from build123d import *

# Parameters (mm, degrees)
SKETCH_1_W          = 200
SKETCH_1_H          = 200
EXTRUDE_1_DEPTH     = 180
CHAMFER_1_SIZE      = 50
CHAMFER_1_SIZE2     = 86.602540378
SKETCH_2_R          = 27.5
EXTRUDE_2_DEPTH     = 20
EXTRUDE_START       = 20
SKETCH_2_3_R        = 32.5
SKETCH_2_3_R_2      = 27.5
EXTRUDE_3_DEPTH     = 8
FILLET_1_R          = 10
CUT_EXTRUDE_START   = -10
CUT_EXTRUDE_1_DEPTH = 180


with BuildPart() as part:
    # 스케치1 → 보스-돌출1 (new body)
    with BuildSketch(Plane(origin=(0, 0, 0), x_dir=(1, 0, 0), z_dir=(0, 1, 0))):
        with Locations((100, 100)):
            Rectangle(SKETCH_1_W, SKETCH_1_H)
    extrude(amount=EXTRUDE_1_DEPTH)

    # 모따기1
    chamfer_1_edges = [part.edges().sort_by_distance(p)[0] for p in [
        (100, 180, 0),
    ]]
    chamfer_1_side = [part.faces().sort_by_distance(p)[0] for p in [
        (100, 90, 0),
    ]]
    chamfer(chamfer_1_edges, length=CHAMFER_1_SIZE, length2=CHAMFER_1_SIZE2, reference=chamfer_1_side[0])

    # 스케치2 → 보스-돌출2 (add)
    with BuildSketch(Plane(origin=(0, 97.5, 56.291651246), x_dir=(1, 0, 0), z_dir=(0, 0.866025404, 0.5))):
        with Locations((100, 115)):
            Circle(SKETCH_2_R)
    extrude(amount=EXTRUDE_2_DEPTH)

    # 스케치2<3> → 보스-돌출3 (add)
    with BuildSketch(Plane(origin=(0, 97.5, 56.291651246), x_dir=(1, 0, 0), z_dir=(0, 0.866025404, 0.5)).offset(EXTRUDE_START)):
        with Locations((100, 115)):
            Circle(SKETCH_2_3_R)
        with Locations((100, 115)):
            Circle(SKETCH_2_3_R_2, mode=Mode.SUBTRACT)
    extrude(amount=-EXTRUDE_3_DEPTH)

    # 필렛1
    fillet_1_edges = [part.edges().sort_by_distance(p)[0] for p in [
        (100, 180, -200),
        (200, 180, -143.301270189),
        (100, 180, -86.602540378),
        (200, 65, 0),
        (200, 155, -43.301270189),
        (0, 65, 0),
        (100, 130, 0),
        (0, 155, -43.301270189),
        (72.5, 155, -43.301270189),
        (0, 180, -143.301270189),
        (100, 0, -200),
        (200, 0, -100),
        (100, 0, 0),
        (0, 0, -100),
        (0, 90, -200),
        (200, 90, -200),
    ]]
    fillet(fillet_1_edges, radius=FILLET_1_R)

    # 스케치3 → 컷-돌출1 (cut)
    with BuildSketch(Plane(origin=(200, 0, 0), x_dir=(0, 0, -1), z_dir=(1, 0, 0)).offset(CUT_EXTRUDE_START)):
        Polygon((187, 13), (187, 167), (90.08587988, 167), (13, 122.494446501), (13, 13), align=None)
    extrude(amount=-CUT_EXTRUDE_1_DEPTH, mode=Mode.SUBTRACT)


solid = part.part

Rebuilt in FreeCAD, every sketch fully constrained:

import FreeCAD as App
import Part
import Sketcher
Q = App.Units.Quantity


def edges_at(feature, points):
    """Names of the edges that pass closest to the given points."""
    edges = feature.Shape.Edges
    near = lambda p: min(range(len(edges)), key=lambda i: edges[i].distToShape(Part.Vertex(*p))[0])
    return sorted({f"Edge{near(p) + 1}" for p in points})

doc = App.newDocument("Part")
body = doc.addObject("PartDesign::Body", "Body")

# Sketch on XZ plane
sketch1 = body.newObject("Sketcher::SketchObject", "Sketch")
sketch1.AttachmentSupport = (doc.getObject("XZ_Plane"), [""])
sketch1.MapMode = "FlatFace"
sketch1.addGeometry([
    Part.LineSegment(App.Vector(0, -200, 0), App.Vector(0, 0, 0)),
    Part.LineSegment(App.Vector(0, 0, 0), App.Vector(200, 0, 0)),
    Part.LineSegment(App.Vector(200, 0, 0), App.Vector(200, -200, 0)),
    Part.LineSegment(App.Vector(200, -200, 0), App.Vector(0, -200, 0)),
], False)
sketch1.addConstraint([
    Sketcher.Constraint("Coincident", 0, 2, 1, 1),
    Sketcher.Constraint("Coincident", 1, 2, 2, 1),
    Sketcher.Constraint("Coincident", 2, 2, 3, 1),
    Sketcher.Constraint("Coincident", 3, 2, 0, 1),
    Sketcher.Constraint("Vertical", 0),
    Sketcher.Constraint("Horizontal", 1),
    Sketcher.Constraint("Vertical", 2),
    Sketcher.Constraint("Horizontal", 3),
    Sketcher.Constraint("Coincident", 0, 2, -1, 1),
    Sketcher.Constraint("Equal", 3, 0),
    Sketcher.Constraint("DistanceX", 1, 1, 1, 2, 200.0),
])
pad1 = body.newObject("PartDesign::Pad", "Pad")
pad1.Profile = sketch1
pad1.Length = 180
pad1.Reversed = True
doc.recompute()

chamfer = body.newObject("PartDesign::Chamfer", "Chamfer")
chamfer.Base = (pad1, edges_at(pad1, [(100, 180, 0)]))
chamfer.ChamferType = "Two distances"
chamfer.Size = 50
chamfer.Size2 = 86.60254

# Sketch on an angled plane
sketch2 = body.newObject("Sketcher::SketchObject", "Sketch001")
sketch2.Placement = App.Placement(App.Vector(0, 97.5, 56.291651), App.Rotation(App.Vector(1, 0, 0), App.Vector(0, 0.5, -0.866025404), App.Vector(0, 0.866025404, 0.5), "ZXY"))
sketch2.addGeometry(Part.Circle(App.Vector(100, 115, 0), App.Vector(0, 0, 1), 28), False)
sketch2.addConstraint([
    Sketcher.Constraint("Diameter", 0, 55.0),
    Sketcher.Constraint("DistanceX", -1, 1, 0, 3, 100.0),
    Sketcher.Constraint("DistanceY", -1, 1, 0, 3, 115.0),
])
pad2 = body.newObject("PartDesign::Pad", "Pad001")
pad2.Profile = sketch2
pad2.Length = 20

# Sketch on an angled plane
sketch3 = body.newObject("Sketcher::SketchObject", "Sketch002")
sketch3.Placement = App.Placement(App.Vector(0, 114.820508, 66.291651), App.Rotation(App.Vector(1, 0, 0), App.Vector(0, 0.5, -0.866025404), App.Vector(0, 0.866025404, 0.5), "ZXY"))
sketch3.addGeometry([
    Part.Circle(App.Vector(100, 115, 0), App.Vector(0, 0, 1), 32),
    Part.Circle(App.Vector(100, 115, 0), App.Vector(0, 0, 1), 28),
], False)
sketch3.addConstraint([
    Sketcher.Constraint("Coincident", 1, 3, 0, 3),
    Sketcher.Constraint("Diameter", 0, 65.0),
    Sketcher.Constraint("Diameter", 1, 55.0),
    Sketcher.Constraint("DistanceX", -1, 1, 0, 3, 100.0),
    Sketcher.Constraint("DistanceY", -1, 1, 0, 3, 115.0),
])
pad3 = body.newObject("PartDesign::Pad", "Pad002")
pad3.Profile = sketch3
pad3.Length = 8
pad3.Reversed = True
doc.recompute()

fillet = body.newObject("PartDesign::Fillet", "Fillet")
fillet.Base = (pad3, edges_at(pad3, [
    (100, 180, -200),
    (200, 180, -143.301),
    (100, 180, -86.603),
    (200, 65, 0),
    (200, 155, -43.301),
    (0, 65, 0),
    (100, 130, 0),
    (0, 155, -43.301),
    (72.5, 155, -43.301),
    (0, 180, -143.301),
    (100, 0, -200),
    (200, 0, -100),
    (100, 0, 0),
    (0, 0, -100),
    (0, 90, -200),
    (200, 90, -200),
]))
fillet.Radius = 10

# Sketch on YZ plane
sketch4 = body.newObject("Sketcher::SketchObject", "Sketch003")
sketch4.AttachmentSupport = (doc.getObject("YZ_Plane"), [""])
sketch4.MapMode = "FlatFace"
sketch4.AttachmentOffset = App.Placement(App.Vector(0, 0, 190), App.Rotation())
sketch4.addGeometry([
    Part.LineSegment(App.Vector(13, -187, 0), App.Vector(167, -187, 0)),  # 0
    Part.LineSegment(App.Vector(167, -187, 0), App.Vector(167, -90, 0)),  # 1
    Part.LineSegment(App.Vector(167, -90, 0), App.Vector(122, -13, 0)),  # 2
    Part.LineSegment(App.Vector(122, -13, 0), App.Vector(13, -13, 0)),  # 3
    Part.LineSegment(App.Vector(13, -13, 0), App.Vector(13, -187, 0)),  # 4
], False)
sketch4.addConstraint([
    Sketcher.Constraint("Coincident", 0, 2, 1, 1),
    Sketcher.Constraint("Coincident", 1, 2, 2, 1),
    Sketcher.Constraint("Coincident", 2, 2, 3, 1),
    Sketcher.Constraint("Coincident", 3, 2, 4, 1),
    Sketcher.Constraint("Coincident", 4, 2, 0, 1),
    Sketcher.Constraint("Horizontal", 0),
    Sketcher.Constraint("Vertical", 1),
    Sketcher.Constraint("Horizontal", 3),
    Sketcher.Constraint("Vertical", 4),
    Sketcher.Constraint("DistanceX", 0, 1, 0, 2, 154.0),
    Sketcher.Constraint("DistanceY", 4, 2, 4, 1, 174.0),
    Sketcher.Constraint("Angle", 2, Q("120 deg")),
    Sketcher.Constraint("DistanceX", -1, 1, 0, 2, 167.0),
    Sketcher.Constraint("DistanceY", 0, 2, -1, 1, 187.0),
    Sketcher.Constraint("DistanceY", 1, 1, 1, 2, 96.91412),
])
pocket1 = body.newObject("PartDesign::Pocket", "Pocket")
pocket1.Profile = sketch4
pocket1.Length = 180

doc.recompute()
